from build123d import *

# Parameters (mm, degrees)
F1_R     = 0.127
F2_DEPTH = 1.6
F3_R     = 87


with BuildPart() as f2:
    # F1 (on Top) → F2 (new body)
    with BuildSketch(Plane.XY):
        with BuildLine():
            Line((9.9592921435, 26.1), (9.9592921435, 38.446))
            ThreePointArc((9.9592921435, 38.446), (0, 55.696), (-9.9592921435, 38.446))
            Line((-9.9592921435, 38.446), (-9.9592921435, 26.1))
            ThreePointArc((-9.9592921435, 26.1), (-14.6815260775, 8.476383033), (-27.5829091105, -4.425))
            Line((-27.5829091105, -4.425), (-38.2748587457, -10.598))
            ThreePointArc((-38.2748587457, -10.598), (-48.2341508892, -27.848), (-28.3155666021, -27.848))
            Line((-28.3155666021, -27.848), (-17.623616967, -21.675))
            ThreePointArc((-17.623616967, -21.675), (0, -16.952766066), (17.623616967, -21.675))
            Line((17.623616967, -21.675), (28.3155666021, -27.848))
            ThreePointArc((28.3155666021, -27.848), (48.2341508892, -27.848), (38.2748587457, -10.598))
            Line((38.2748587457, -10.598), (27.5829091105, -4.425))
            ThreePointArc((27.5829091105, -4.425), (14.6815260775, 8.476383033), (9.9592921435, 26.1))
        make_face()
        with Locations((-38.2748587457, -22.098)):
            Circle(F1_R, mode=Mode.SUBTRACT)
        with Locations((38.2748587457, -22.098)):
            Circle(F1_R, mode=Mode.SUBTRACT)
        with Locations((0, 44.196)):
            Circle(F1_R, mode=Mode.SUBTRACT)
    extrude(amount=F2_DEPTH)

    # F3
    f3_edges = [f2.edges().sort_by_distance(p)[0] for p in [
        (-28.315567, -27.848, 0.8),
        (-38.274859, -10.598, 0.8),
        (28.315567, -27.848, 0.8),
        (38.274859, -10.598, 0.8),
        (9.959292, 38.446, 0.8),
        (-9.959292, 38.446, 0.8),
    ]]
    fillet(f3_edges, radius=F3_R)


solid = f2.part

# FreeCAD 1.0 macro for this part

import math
import FreeCAD as App
import Part
import Sketcher

V = App.Vector
Q = App.Units.Quantity


def edges_at(feature, points):
    """Names of the edges that pass closest to the given points."""
    edges = feature.Shape.Edges
    near = lambda p: min(range(len(edges)), key=lambda i: edges[i].distToShape(Part.Vertex(*p))[0])
    return sorted({f"Edge{near(p) + 1}" for p in points})

doc = App.newDocument("Part")
body = doc.addObject("PartDesign::Body", "Body")

# Sketch on XY plane
sketch1 = doc.addObject("Sketcher::SketchObject", "Sketch")
body.addObject(sketch1)
sketch1.AttachmentSupport = (doc.XY_Plane, [""])
sketch1.MapMode = "FlatFace"
sketch1.addGeometry(Part.LineSegment(V(9.96, 26.1, 0), V(9.96, 38.45, 0)), False)
sketch1.addGeometry(Part.ArcOfCircle(Part.Circle(V(0, 44.2, 0), V(0, 0, 1), 11.5), math.radians(-30), math.radians(210)), False)
sketch1.addGeometry(Part.LineSegment(V(-9.96, 38.45, 0), V(-9.96, 26.1, 0)), False)
sketch1.addGeometry(Part.ArcOfCircle(Part.Circle(V(-45.21, 26.1, 0), V(0, 0, 1), 35.25), math.radians(-60), math.radians(0)), False)
sketch1.addGeometry(Part.LineSegment(V(-27.58, -4.42, 0), V(-38.27, -10.6, 0)), False)
sketch1.addGeometry(Part.ArcOfCircle(Part.Circle(V(-38.27, -22.1, 0), V(0, 0, 1), 11.5), math.radians(90), math.radians(330)), False)
sketch1.addGeometry(Part.LineSegment(V(-28.32, -27.85, 0), V(-17.62, -21.68, 0)), False)
sketch1.addGeometry(Part.ArcOfCircle(Part.Circle(V(0, -52.2, 0), V(0, 0, 1), 35.25), math.radians(60), math.radians(120)), False)
sketch1.addGeometry(Part.LineSegment(V(17.62, -21.68, 0), V(28.32, -27.85, 0)), False)
sketch1.addGeometry(Part.ArcOfCircle(Part.Circle(V(38.27, -22.1, 0), V(0, 0, 1), 11.5), math.radians(-150), math.radians(90)), False)
sketch1.addGeometry(Part.LineSegment(V(38.27, -10.6, 0), V(27.58, -4.42, 0)), False)
sketch1.addGeometry(Part.ArcOfCircle(Part.Circle(V(45.21, 26.1, 0), V(0, 0, 1), 35.25), math.radians(180), math.radians(240)), False)
sketch1.addGeometry(Part.Circle(V(-38.27, -22.1, 0), V(0, 0, 1), 0.13), False)
sketch1.addGeometry(Part.Circle(V(38.27, -22.1, 0), V(0, 0, 1), 0.13), False)
sketch1.addGeometry(Part.Circle(V(0, 44.2, 0), V(0, 0, 1), 0.13), False)
sketch1.addConstraint(Sketcher.Constraint("Coincident", 0, 2, 1, 1))
sketch1.addConstraint(Sketcher.Constraint("Coincident", 1, 2, 2, 1))
sketch1.addConstraint(Sketcher.Constraint("Tangent", 2, 2, 3, 2))
sketch1.addConstraint(Sketcher.Constraint("Tangent", 3, 1, 4, 1))
sketch1.addConstraint(Sketcher.Constraint("Coincident", 4, 2, 5, 1))
sketch1.addConstraint(Sketcher.Constraint("Coincident", 5, 2, 6, 1))
sketch1.addConstraint(Sketcher.Constraint("Tangent", 6, 2, 7, 2))
sketch1.addConstraint(Sketcher.Constraint("Tangent", 7, 1, 8, 1))
sketch1.addConstraint(Sketcher.Constraint("Coincident", 8, 2, 9, 1))
sketch1.addConstraint(Sketcher.Constraint("Coincident", 9, 2, 10, 1))
sketch1.addConstraint(Sketcher.Constraint("Tangent", 10, 2, 11, 2))
sketch1.addConstraint(Sketcher.Constraint("Tangent", 11, 1, 0, 1))
sketch1.addConstraint(Sketcher.Constraint("Vertical", 0))
sketch1.addConstraint(Sketcher.Constraint("Vertical", 2))
sketch1.addConstraint(Sketcher.Constraint("Coincident", 12, 3, 5, 3))
sketch1.addConstraint(Sketcher.Constraint("Coincident", 13, 3, 9, 3))
sketch1.addConstraint(Sketcher.Constraint("Coincident", 14, 3, 1, 3))
sketch1.addConstraint(Sketcher.Constraint("Equal", 1, 5))
sketch1.addConstraint(Sketcher.Constraint("Equal", 3, 7))
sketch1.addConstraint(Sketcher.Constraint("Equal", 5, 9))
sketch1.addConstraint(Sketcher.Constraint("Equal", 7, 11))
sketch1.addConstraint(Sketcher.Constraint("Equal", 12, 13))
sketch1.addConstraint(Sketcher.Constraint("Equal", 13, 14))
sketch1.addConstraint(Sketcher.Constraint("Symmetric", 5, 3, 9, 3, -2))
sketch1.addConstraint(Sketcher.Constraint("Symmetric", 3, 3, 11, 3, -2))
sketch1.addConstraint(Sketcher.Constraint("Symmetric", 6, 2, 7, 1, -2))
sketch1.addConstraint(Sketcher.Constraint("PointOnObject", 1, 3, -2))
sketch1.addConstraint(Sketcher.Constraint("Parallel", 4, 6))
sketch1.addConstraint(Sketcher.Constraint("Parallel", 8, 10))
sketch1.addConstraint(Sketcher.Constraint("Vertical", 12, 3, 4, 2))
sketch1.addConstraint(Sketcher.Constraint("Equal", 4, 6))
sketch1.addConstraint(Sketcher.Constraint("Radius", 1, Q("11.5 mm")))
sketch1.addConstraint(Sketcher.Constraint("Angle", 4, Q("-150 deg")))
sketch1.addConstraint(Sketcher.Constraint("Diameter", 12, Q("0.254 mm")))
sketch1.addConstraint(Sketcher.Constraint("DistanceY", -1, 1, 3, 3, Q("26.1 mm")))
sketch1.addConstraint(Sketcher.Constraint("DistanceY", 7, 3, -1, 1, Q("52.2 mm")))
sketch1.addConstraint(Sketcher.Constraint("DistanceY", 0, 1, 0, 2, Q("12.346 mm")))
sketch1.addConstraint(Sketcher.Constraint("DistanceY", 0, 2, 1, 3, Q("5.75 mm")))
sketch1.addConstraint(Sketcher.Constraint("Distance", 4, Q("12.346 mm")))
pad1 = doc.addObject("PartDesign::Pad", "Pad")
body.addObject(pad1)
pad1.Profile = sketch1
pad1.Length = 1.6
doc.recompute()

fillet = doc.addObject("PartDesign::Fillet", "Fillet")
body.addObject(fillet)
fillet.Base = (pad1, edges_at(pad1, [
    (-28.316, -27.848, 0.8),
    (-38.275, -10.598, 0.8),
    (28.316, -27.848, 0.8),
    (38.275, -10.598, 0.8),
    (9.959, 38.446, 0.8),
    (-9.959, 38.446, 0.8),
]))
fillet.Radius = 87

doc.recompute()
